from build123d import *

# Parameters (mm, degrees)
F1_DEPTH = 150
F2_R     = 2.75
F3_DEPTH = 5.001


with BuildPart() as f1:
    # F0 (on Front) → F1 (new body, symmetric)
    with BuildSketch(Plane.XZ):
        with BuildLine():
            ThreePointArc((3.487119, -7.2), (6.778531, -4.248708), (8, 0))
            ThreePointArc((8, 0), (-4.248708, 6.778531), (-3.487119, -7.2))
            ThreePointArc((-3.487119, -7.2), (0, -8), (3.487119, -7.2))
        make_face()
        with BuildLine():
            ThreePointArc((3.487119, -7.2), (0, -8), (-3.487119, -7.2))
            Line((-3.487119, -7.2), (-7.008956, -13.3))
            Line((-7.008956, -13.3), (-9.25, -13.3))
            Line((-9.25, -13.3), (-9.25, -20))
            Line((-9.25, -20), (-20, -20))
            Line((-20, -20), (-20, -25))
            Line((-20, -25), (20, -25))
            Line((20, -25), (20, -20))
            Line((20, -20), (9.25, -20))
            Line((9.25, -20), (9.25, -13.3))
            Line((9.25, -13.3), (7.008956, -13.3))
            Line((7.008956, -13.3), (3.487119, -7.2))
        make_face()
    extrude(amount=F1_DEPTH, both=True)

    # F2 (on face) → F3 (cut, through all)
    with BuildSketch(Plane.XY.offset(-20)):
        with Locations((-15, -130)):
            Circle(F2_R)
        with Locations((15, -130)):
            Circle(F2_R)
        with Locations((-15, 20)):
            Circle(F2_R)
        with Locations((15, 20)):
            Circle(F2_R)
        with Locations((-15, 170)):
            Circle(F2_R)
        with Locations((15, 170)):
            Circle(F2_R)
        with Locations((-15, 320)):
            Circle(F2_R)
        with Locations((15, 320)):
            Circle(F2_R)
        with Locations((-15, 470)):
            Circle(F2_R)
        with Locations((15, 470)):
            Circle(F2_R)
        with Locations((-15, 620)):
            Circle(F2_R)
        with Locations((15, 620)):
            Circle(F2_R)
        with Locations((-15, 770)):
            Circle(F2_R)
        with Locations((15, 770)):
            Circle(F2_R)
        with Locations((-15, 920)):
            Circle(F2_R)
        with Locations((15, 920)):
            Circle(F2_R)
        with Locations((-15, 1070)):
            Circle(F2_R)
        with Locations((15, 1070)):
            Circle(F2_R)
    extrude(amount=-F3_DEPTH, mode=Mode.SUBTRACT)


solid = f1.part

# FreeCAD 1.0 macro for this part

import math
import FreeCAD as App
import Part
import Sketcher
from FreeCAD import Vector
Q = App.Units.Quantity

doc = App.newDocument("Part")
body = doc.addObject("PartDesign::Body", "Body")

sketch1 = body.newObject("Sketcher::SketchObject", "Sketch")
sketch1.AttachmentSupport = (doc.getObject("XZ_Plane"), [""])
sketch1.MapMode = "FlatFace"
sketch1.addGeometry([
    Part.ArcOfCircle(Part.Circle(Vector(0.000001, -0.000001, 0), Vector(0, 0, 1), 7.999999), math.radians(-64.158073), math.radians(0.000004)),
    Part.ArcOfCircle(Part.Circle(Vector(0, 0, 0), Vector(0, 0, 1), 8), math.radians(-0.000001), math.radians(244.158069)),
    Part.LineSegment(Vector(-3.487119, -7.2, 0), Vector(-7.008956, -13.3, 0)),
    Part.LineSegment(Vector(-7.008956, -13.3, 0), Vector(-9.25, -13.3, 0)),
    Part.LineSegment(Vector(-9.25, -13.3, 0), Vector(-9.25, -20, 0)),
    Part.LineSegment(Vector(-9.25, -20, 0), Vector(-20, -20, 0)),
    Part.LineSegment(Vector(-20, -20, 0), Vector(-20, -25, 0)),
    Part.LineSegment(Vector(-20, -25, 0), Vector(20, -25, 0)),
    Part.LineSegment(Vector(20, -25, 0), Vector(20, -20, 0)),
    Part.LineSegment(Vector(20, -20, 0), Vector(9.25, -20, 0)),
    Part.LineSegment(Vector(9.25, -20, 0), Vector(9.25, -13.3, 0)),
    Part.LineSegment(Vector(9.25, -13.3, 0), Vector(7.008956, -13.3, 0)),
    Part.LineSegment(Vector(7.008956, -13.3, 0), Vector(3.487119, -7.2, 0)),
], False)
sketch1.addConstraint([
    Sketcher.Constraint("Tangent", 0, 2, 1, 1),
    Sketcher.Constraint("Coincident", 1, 2, 2, 1),
    Sketcher.Constraint("Coincident", 2, 2, 3, 1),
    Sketcher.Constraint("Coincident", 3, 2, 4, 1),
    Sketcher.Constraint("Coincident", 4, 2, 5, 1),
    Sketcher.Constraint("Coincident", 5, 2, 6, 1),
    Sketcher.Constraint("Coincident", 6, 2, 7, 1),
    Sketcher.Constraint("Coincident", 7, 2, 8, 1),
    Sketcher.Constraint("Coincident", 8, 2, 9, 1),
    Sketcher.Constraint("Coincident", 9, 2, 10, 1),
    Sketcher.Constraint("Coincident", 10, 2, 11, 1),
    Sketcher.Constraint("Coincident", 11, 2, 12, 1),
    Sketcher.Constraint("Coincident", 12, 2, 0, 1),
    Sketcher.Constraint("Horizontal", 3),
    Sketcher.Constraint("Vertical", 4),
    Sketcher.Constraint("Horizontal", 5),
    Sketcher.Constraint("Vertical", 6),
    Sketcher.Constraint("Horizontal", 7),
    Sketcher.Constraint("Vertical", 8),
    Sketcher.Constraint("Horizontal", 9),
    Sketcher.Constraint("Vertical", 10),
    Sketcher.Constraint("Horizontal", 11),
    Sketcher.Constraint("Coincident", 0, 3, -1, 1),
    Sketcher.Constraint("Equal", 0, 1),
    Sketcher.Constraint("Symmetric", 5, 2, 8, 2, -2),
    Sketcher.Constraint("Symmetric", 3, 2, 10, 2, -2),
    Sketcher.Constraint("PointOnObject", 0, 2, -1),
    Sketcher.Constraint("Horizontal", 1, 2, 12, 2),
    Sketcher.Constraint("Equal", 3, 11),
    Sketcher.Constraint("Radius", 0, Q("7.999999 mm")),
    Sketcher.Constraint("DistanceX", 7, 1, 7, 2, Q("40 mm")),
    Sketcher.Constraint("DistanceY", 6, 2, 6, 1, Q("5 mm")),
    Sketcher.Constraint("Angle", 2, Q("-120.000003 deg")),
    Sketcher.Constraint("DistanceY", 4, 2, 4, 1, Q("6.7 mm")),
    Sketcher.Constraint("DistanceY", 4, 2, -1, 1, Q("20 mm")),
    Sketcher.Constraint("DistanceX", 5, 2, 5, 1, Q("10.75 mm")),
    Sketcher.Constraint("DistanceY", 1, 2, -1, 1, Q("7.2 mm")),
])
pad1 = body.newObject("PartDesign::Pad", "Pad")
pad1.Profile = sketch1
pad1.Length = 300
pad1.Midplane = True

sketch2 = body.newObject("Sketcher::SketchObject", "Sketch001")
sketch2.AttachmentSupport = (doc.getObject("XY_Plane"), [""])
sketch2.MapMode = "FlatFace"
sketch2.AttachmentOffset = App.Placement(Vector(0, 0, -20), App.Rotation())
sketch2.addGeometry([
    Part.Circle(Vector(-15, -130, 0), Vector(0, 0, 1), 2.75),
    Part.Circle(Vector(15, -130, 0), Vector(0, 0, 1), 2.75),
    Part.Circle(Vector(-15, 20, 0), Vector(0, 0, 1), 2.75),
    Part.Circle(Vector(15, 20, 0), Vector(0, 0, 1), 2.75),
    Part.Circle(Vector(-15, 170, 0), Vector(0, 0, 1), 2.75),
    Part.Circle(Vector(15, 170, 0), Vector(0, 0, 1), 2.75),
    Part.Circle(Vector(-15, 320, 0), Vector(0, 0, 1), 2.75),
    Part.Circle(Vector(15, 320, 0), Vector(0, 0, 1), 2.75),
    Part.Circle(Vector(-15, 470, 0), Vector(0, 0, 1), 2.75),
    Part.Circle(Vector(15, 470, 0), Vector(0, 0, 1), 2.75),
    Part.Circle(Vector(-15, 620, 0), Vector(0, 0, 1), 2.75),
    Part.Circle(Vector(15, 620, 0), Vector(0, 0, 1), 2.75),
    Part.Circle(Vector(-15, 770, 0), Vector(0, 0, 1), 2.75),
    Part.Circle(Vector(15, 770, 0), Vector(0, 0, 1), 2.75),
    Part.Circle(Vector(-15, 920, 0), Vector(0, 0, 1), 2.75),
    Part.Circle(Vector(15, 920, 0), Vector(0, 0, 1), 2.75),
    Part.Circle(Vector(-15, 1070, 0), Vector(0, 0, 1), 2.75),
    Part.Circle(Vector(15, 1070, 0), Vector(0, 0, 1), 2.75),
], False)
sketch2.addConstraint([
    Sketcher.Constraint("Equal", 0, 1),
    Sketcher.Constraint("Equal", 1, 2),
    Sketcher.Constraint("Equal", 2, 3),
    Sketcher.Constraint("Equal", 3, 4),
    Sketcher.Constraint("Equal", 4, 5),
    Sketcher.Constraint("Equal", 5, 6),
    Sketcher.Constraint("Equal", 6, 7),
    Sketcher.Constraint("Equal", 7, 8),
    Sketcher.Constraint("Equal", 8, 9),
    Sketcher.Constraint("Equal", 9, 10),
    Sketcher.Constraint("Equal", 10, 11),
    Sketcher.Constraint("Equal", 11, 12),
    Sketcher.Constraint("Equal", 12, 13),
    Sketcher.Constraint("Equal", 13, 14),
    Sketcher.Constraint("Equal", 14, 15),
    Sketcher.Constraint("Equal", 15, 16),
    Sketcher.Constraint("Equal", 16, 17),
    Sketcher.Constraint("Symmetric", 0, 3, 1, 3, -2),
    Sketcher.Constraint("Symmetric", 2, 3, 3, 3, -2),
    Sketcher.Constraint("Symmetric", 4, 3, 5, 3, -2),
    Sketcher.Constraint("Symmetric", 6, 3, 7, 3, -2),
    Sketcher.Constraint("Symmetric", 8, 3, 9, 3, -2),
    Sketcher.Constraint("Symmetric", 10, 3, 11, 3, -2),
    Sketcher.Constraint("Symmetric", 12, 3, 13, 3, -2),
    Sketcher.Constraint("Symmetric", 14, 3, 15, 3, -2),
    Sketcher.Constraint("Symmetric", 16, 3, 17, 3, -2),
    Sketcher.Constraint("Vertical", 0, 3, 2, 3),
    Sketcher.Constraint("Vertical", 2, 3, 4, 3),
    Sketcher.Constraint("Vertical", 4, 3, 6, 3),
    Sketcher.Constraint("Vertical", 6, 3, 8, 3),
    Sketcher.Constraint("Vertical", 8, 3, 10, 3),
    Sketcher.Constraint("Vertical", 10, 3, 12, 3),
    Sketcher.Constraint("Vertical", 12, 3, 14, 3),
    Sketcher.Constraint("Vertical", 14, 3, 16, 3),
    Sketcher.Constraint("Diameter", 0, Q("5.5 mm")),
    Sketcher.Constraint("DistanceX", 0, 3, -1, 1, Q("15 mm")),
    Sketcher.Constraint("DistanceY", 0, 3, -1, 1, Q("130 mm")),
    Sketcher.Constraint("DistanceY", -1, 1, 2, 3, Q("20 mm")),
    Sketcher.Constraint("DistanceY", -1, 1, 4, 3, Q("170 mm")),
    Sketcher.Constraint("DistanceY", -1, 1, 6, 3, Q("320 mm")),
    Sketcher.Constraint("DistanceY", -1, 1, 8, 3, Q("470 mm")),
    Sketcher.Constraint("DistanceY", -1, 1, 10, 3, Q("620 mm")),
    Sketcher.Constraint("DistanceY", -1, 1, 12, 3, Q("770 mm")),
    Sketcher.Constraint("DistanceY", -1, 1, 14, 3, Q("920 mm")),
    Sketcher.Constraint("DistanceY", -1, 1, 16, 3, Q("1070 mm")),
])
pocket1 = body.newObject("PartDesign::Pocket", "Pocket")
pocket1.Profile = sketch2
pocket1.Type = "ThroughAll"

doc.recompute()
